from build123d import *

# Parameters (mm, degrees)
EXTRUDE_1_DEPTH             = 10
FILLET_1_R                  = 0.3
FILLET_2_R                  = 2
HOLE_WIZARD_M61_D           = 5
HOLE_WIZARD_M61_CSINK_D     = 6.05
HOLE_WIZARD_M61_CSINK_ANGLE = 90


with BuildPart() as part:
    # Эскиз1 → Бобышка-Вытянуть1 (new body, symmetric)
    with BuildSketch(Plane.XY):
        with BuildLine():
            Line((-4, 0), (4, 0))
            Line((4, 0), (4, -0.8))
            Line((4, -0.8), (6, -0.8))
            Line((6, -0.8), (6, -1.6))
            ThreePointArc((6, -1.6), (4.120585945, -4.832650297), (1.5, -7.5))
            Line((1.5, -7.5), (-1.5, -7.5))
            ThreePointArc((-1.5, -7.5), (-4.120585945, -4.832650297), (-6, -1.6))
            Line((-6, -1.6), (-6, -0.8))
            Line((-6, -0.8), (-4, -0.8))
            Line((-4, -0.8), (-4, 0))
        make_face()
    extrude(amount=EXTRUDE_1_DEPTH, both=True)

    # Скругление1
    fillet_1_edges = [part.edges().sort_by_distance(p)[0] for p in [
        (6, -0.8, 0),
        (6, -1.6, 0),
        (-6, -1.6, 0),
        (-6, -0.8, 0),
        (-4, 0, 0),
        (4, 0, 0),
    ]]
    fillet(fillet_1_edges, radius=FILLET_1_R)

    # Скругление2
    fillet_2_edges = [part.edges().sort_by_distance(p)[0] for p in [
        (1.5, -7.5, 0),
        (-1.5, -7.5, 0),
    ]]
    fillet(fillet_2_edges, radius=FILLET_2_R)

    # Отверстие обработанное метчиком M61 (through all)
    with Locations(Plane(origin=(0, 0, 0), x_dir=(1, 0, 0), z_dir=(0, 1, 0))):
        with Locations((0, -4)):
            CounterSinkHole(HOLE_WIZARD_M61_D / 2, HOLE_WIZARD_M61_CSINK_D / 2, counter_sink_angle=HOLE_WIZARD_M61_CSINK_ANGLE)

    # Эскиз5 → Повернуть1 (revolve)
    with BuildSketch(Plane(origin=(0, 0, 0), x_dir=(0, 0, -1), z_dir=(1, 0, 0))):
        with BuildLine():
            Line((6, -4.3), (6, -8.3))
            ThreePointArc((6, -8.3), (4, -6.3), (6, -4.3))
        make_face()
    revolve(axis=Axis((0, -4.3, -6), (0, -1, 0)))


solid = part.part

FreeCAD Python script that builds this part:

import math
import FreeCAD as App
import Part
import Sketcher


def edges_at(feature, points):
    """Names of the edges that pass closest to the given points."""
    edges = feature.Shape.Edges
    near = lambda p: min(range(len(edges)), key=lambda i: edges[i].distToShape(Part.Vertex(*p))[0])
    return sorted({f"Edge{near(p) + 1}" for p in points})

doc = App.newDocument("Part")
body = doc.addObject("PartDesign::Body", "Body")

# Sketch on XY plane
sketch1 = doc.addObject("Sketcher::SketchObject", "Sketch")
body.addObject(sketch1)
sketch1.AttachmentSupport = (doc.XY_Plane, [""])
sketch1.MapMode = "FlatFace"
sketch1.addGeometry([
    Part.LineSegment(App.Vector(4, 0, 0), App.Vector(-4, 0, 0)),  # 0
    Part.LineSegment(App.Vector(-4, 0, 0), App.Vector(-4, -0.8, 0)),  # 1
    Part.LineSegment(App.Vector(-4, -0.8, 0), App.Vector(-6, -0.8, 0)),  # 2
    Part.LineSegment(App.Vector(-6, -0.8, 0), App.Vector(-6, -1.6, 0)),  # 3
    Part.ArcOfCircle(Part.Circle(App.Vector(7.8, 4.3, 0), App.Vector(0, 0, 1), 15), math.radians(-157), math.radians(-128)),  # 4
    Part.LineSegment(App.Vector(-1.5, -7.5, 0), App.Vector(1.5, -7.5, 0)),  # 5
    Part.ArcOfCircle(Part.Circle(App.Vector(-7.8, 4.3, 0), App.Vector(0, 0, 1), 15), math.radians(-52), math.radians(-23)),  # 6
    Part.LineSegment(App.Vector(6, -1.6, 0), App.Vector(6, -0.8, 0)),  # 7
    Part.LineSegment(App.Vector(6, -0.8, 0), App.Vector(4, -0.8, 0)),  # 8
    Part.LineSegment(App.Vector(4, -0.8, 0), App.Vector(4, 0, 0)),  # 9
], False)
sketch1.addConstraint([
    Sketcher.Constraint("Coincident", 0, 2, 1, 1),
    Sketcher.Constraint("Coincident", 1, 2, 2, 1),
    Sketcher.Constraint("Coincident", 2, 2, 3, 1),
    Sketcher.Constraint("Coincident", 3, 2, 4, 1),
    Sketcher.Constraint("Coincident", 4, 2, 5, 1),
    Sketcher.Constraint("Coincident", 5, 2, 6, 1),
    Sketcher.Constraint("Coincident", 6, 2, 7, 1),
    Sketcher.Constraint("Coincident", 7, 2, 8, 1),
    Sketcher.Constraint("Coincident", 8, 2, 9, 1),
    Sketcher.Constraint("Coincident", 9, 2, 0, 1),
    Sketcher.Constraint("Horizontal", 0),
    Sketcher.Constraint("Vertical", 1),
    Sketcher.Constraint("Horizontal", 2),
    Sketcher.Constraint("Vertical", 3),
    Sketcher.Constraint("Horizontal", 5),
    Sketcher.Constraint("Vertical", 7),
    Sketcher.Constraint("Horizontal", 8),
    Sketcher.Constraint("Vertical", 9),
    Sketcher.Constraint("Equal", 4, 6),
    Sketcher.Constraint("Symmetric", 0, 2, 9, 2, -1, 1),
    Sketcher.Constraint("Symmetric", 4, 3, 6, 3, -2),
    Sketcher.Constraint("Symmetric", 2, 2, 7, 2, -2),
    Sketcher.Constraint("Equal", 1, 3),
    Sketcher.Constraint("Radius", 4, 15.0),
    Sketcher.Constraint("DistanceX", 0, 2, 0, 1, 8.0),
    Sketcher.Constraint("DistanceX", 2, 2, 2, 1, 2.0),
    Sketcher.Constraint("DistanceX", 5, 1, 5, 2, 3.0),
    Sketcher.Constraint("DistanceY", 1, 2, 1, 1, 0.8),
    Sketcher.Constraint("DistanceY", 4, 2, -1, 1, 7.5),
])
pad1 = doc.addObject("PartDesign::Pad", "Pad")
body.addObject(pad1)
pad1.Profile = sketch1
pad1.Length = 20
pad1.Midplane = True
doc.recompute()

fillet = doc.addObject("PartDesign::Fillet", "Fillet")
body.addObject(fillet)
fillet.Base = (pad1, edges_at(pad1, [
    (6, -0.8, 0),
    (6, -1.6, 0),
    (-6, -1.6, 0),
    (-6, -0.8, 0),
    (-4, 0, 0),
    (4, 0, 0),
]))
fillet.Radius = 0.3
doc.recompute()

fillet2 = doc.addObject("PartDesign::Fillet", "Fillet001")
body.addObject(fillet2)
fillet2.Base = (fillet, edges_at(fillet, [(1.5, -7.5, 0), (-1.5, -7.5, 0)]))
fillet2.Radius = 2

# Sketch on XZ plane
sketch2 = doc.addObject("Sketcher::SketchObject", "Sketch001")
body.addObject(sketch2)
sketch2.AttachmentSupport = (doc.XZ_Plane, [""])
sketch2.MapMode = "FlatFace"
sketch2.addGeometry(Part.Circle(App.Vector(0, 4, 0), App.Vector(0, 0, 1), 2.5), False)
sketch2.addConstraint([
    Sketcher.Constraint("PointOnObject", 0, 3, -2),
    Sketcher.Constraint("Diameter", 0, 5.0),
    Sketcher.Constraint("DistanceY", -1, 1, 0, 3, 4.0),
])
doc.recompute()
hole = doc.addObject("PartDesign::Hole", "Hole")
body.addObject(hole)
hole.Profile = sketch2
hole.ThreadType = "None"
hole.Diameter = 5
hole.DepthType = "ThroughAll"
hole.HoleCutType = "Countersink"
hole.HoleCutDiameter = 6.05
hole.HoleCutCountersinkAngle = 90
hole.Reversed = True

# Sketch on YZ plane
sketch3 = doc.addObject("Sketcher::SketchObject", "Sketch002")
body.addObject(sketch3)
sketch3.AttachmentSupport = (doc.YZ_Plane, [""])
sketch3.MapMode = "FlatFace"
sketch3.addGeometry([
    Part.LineSegment(App.Vector(-8.3, -6, 0), App.Vector(-4.3, -6, 0)),
    Part.ArcOfCircle(Part.Circle(App.Vector(-6.3, -6, 0), App.Vector(0, 0, 1), 2), math.radians(0), math.radians(180)),
], False)
sketch3.addGeometry(Part.LineSegment(App.Vector(-4.3, -6, 0), App.Vector(-8.3, -6, 0)), True)  # axis
sketch3.addConstraint([
    Sketcher.Constraint("Coincident", 0, 1, 1, 2),
    Sketcher.Constraint("Coincident", 1, 1, 0, 2),
    Sketcher.Constraint("Horizontal", 0),
    Sketcher.Constraint("Horizontal", 2),
    Sketcher.Constraint("Coincident", 2, 1, 1, 1),
    Sketcher.Constraint("Horizontal", 1, 3, 0, 1),
    Sketcher.Constraint("Equal", 0, 2),
    Sketcher.Constraint("Radius", 1, 2.0),
    Sketcher.Constraint("DistanceY", 1, 3, -1, 1, 6.0),
    Sketcher.Constraint("DistanceX", 1, 3, -1, 1, 6.3),
])
revolution = doc.addObject("PartDesign::Revolution", "Revolution")
body.addObject(revolution)
revolution.Profile = sketch3
revolution.ReferenceAxis = (sketch3, ["Axis0"])
revolution.Angle = 360

doc.recompute()
